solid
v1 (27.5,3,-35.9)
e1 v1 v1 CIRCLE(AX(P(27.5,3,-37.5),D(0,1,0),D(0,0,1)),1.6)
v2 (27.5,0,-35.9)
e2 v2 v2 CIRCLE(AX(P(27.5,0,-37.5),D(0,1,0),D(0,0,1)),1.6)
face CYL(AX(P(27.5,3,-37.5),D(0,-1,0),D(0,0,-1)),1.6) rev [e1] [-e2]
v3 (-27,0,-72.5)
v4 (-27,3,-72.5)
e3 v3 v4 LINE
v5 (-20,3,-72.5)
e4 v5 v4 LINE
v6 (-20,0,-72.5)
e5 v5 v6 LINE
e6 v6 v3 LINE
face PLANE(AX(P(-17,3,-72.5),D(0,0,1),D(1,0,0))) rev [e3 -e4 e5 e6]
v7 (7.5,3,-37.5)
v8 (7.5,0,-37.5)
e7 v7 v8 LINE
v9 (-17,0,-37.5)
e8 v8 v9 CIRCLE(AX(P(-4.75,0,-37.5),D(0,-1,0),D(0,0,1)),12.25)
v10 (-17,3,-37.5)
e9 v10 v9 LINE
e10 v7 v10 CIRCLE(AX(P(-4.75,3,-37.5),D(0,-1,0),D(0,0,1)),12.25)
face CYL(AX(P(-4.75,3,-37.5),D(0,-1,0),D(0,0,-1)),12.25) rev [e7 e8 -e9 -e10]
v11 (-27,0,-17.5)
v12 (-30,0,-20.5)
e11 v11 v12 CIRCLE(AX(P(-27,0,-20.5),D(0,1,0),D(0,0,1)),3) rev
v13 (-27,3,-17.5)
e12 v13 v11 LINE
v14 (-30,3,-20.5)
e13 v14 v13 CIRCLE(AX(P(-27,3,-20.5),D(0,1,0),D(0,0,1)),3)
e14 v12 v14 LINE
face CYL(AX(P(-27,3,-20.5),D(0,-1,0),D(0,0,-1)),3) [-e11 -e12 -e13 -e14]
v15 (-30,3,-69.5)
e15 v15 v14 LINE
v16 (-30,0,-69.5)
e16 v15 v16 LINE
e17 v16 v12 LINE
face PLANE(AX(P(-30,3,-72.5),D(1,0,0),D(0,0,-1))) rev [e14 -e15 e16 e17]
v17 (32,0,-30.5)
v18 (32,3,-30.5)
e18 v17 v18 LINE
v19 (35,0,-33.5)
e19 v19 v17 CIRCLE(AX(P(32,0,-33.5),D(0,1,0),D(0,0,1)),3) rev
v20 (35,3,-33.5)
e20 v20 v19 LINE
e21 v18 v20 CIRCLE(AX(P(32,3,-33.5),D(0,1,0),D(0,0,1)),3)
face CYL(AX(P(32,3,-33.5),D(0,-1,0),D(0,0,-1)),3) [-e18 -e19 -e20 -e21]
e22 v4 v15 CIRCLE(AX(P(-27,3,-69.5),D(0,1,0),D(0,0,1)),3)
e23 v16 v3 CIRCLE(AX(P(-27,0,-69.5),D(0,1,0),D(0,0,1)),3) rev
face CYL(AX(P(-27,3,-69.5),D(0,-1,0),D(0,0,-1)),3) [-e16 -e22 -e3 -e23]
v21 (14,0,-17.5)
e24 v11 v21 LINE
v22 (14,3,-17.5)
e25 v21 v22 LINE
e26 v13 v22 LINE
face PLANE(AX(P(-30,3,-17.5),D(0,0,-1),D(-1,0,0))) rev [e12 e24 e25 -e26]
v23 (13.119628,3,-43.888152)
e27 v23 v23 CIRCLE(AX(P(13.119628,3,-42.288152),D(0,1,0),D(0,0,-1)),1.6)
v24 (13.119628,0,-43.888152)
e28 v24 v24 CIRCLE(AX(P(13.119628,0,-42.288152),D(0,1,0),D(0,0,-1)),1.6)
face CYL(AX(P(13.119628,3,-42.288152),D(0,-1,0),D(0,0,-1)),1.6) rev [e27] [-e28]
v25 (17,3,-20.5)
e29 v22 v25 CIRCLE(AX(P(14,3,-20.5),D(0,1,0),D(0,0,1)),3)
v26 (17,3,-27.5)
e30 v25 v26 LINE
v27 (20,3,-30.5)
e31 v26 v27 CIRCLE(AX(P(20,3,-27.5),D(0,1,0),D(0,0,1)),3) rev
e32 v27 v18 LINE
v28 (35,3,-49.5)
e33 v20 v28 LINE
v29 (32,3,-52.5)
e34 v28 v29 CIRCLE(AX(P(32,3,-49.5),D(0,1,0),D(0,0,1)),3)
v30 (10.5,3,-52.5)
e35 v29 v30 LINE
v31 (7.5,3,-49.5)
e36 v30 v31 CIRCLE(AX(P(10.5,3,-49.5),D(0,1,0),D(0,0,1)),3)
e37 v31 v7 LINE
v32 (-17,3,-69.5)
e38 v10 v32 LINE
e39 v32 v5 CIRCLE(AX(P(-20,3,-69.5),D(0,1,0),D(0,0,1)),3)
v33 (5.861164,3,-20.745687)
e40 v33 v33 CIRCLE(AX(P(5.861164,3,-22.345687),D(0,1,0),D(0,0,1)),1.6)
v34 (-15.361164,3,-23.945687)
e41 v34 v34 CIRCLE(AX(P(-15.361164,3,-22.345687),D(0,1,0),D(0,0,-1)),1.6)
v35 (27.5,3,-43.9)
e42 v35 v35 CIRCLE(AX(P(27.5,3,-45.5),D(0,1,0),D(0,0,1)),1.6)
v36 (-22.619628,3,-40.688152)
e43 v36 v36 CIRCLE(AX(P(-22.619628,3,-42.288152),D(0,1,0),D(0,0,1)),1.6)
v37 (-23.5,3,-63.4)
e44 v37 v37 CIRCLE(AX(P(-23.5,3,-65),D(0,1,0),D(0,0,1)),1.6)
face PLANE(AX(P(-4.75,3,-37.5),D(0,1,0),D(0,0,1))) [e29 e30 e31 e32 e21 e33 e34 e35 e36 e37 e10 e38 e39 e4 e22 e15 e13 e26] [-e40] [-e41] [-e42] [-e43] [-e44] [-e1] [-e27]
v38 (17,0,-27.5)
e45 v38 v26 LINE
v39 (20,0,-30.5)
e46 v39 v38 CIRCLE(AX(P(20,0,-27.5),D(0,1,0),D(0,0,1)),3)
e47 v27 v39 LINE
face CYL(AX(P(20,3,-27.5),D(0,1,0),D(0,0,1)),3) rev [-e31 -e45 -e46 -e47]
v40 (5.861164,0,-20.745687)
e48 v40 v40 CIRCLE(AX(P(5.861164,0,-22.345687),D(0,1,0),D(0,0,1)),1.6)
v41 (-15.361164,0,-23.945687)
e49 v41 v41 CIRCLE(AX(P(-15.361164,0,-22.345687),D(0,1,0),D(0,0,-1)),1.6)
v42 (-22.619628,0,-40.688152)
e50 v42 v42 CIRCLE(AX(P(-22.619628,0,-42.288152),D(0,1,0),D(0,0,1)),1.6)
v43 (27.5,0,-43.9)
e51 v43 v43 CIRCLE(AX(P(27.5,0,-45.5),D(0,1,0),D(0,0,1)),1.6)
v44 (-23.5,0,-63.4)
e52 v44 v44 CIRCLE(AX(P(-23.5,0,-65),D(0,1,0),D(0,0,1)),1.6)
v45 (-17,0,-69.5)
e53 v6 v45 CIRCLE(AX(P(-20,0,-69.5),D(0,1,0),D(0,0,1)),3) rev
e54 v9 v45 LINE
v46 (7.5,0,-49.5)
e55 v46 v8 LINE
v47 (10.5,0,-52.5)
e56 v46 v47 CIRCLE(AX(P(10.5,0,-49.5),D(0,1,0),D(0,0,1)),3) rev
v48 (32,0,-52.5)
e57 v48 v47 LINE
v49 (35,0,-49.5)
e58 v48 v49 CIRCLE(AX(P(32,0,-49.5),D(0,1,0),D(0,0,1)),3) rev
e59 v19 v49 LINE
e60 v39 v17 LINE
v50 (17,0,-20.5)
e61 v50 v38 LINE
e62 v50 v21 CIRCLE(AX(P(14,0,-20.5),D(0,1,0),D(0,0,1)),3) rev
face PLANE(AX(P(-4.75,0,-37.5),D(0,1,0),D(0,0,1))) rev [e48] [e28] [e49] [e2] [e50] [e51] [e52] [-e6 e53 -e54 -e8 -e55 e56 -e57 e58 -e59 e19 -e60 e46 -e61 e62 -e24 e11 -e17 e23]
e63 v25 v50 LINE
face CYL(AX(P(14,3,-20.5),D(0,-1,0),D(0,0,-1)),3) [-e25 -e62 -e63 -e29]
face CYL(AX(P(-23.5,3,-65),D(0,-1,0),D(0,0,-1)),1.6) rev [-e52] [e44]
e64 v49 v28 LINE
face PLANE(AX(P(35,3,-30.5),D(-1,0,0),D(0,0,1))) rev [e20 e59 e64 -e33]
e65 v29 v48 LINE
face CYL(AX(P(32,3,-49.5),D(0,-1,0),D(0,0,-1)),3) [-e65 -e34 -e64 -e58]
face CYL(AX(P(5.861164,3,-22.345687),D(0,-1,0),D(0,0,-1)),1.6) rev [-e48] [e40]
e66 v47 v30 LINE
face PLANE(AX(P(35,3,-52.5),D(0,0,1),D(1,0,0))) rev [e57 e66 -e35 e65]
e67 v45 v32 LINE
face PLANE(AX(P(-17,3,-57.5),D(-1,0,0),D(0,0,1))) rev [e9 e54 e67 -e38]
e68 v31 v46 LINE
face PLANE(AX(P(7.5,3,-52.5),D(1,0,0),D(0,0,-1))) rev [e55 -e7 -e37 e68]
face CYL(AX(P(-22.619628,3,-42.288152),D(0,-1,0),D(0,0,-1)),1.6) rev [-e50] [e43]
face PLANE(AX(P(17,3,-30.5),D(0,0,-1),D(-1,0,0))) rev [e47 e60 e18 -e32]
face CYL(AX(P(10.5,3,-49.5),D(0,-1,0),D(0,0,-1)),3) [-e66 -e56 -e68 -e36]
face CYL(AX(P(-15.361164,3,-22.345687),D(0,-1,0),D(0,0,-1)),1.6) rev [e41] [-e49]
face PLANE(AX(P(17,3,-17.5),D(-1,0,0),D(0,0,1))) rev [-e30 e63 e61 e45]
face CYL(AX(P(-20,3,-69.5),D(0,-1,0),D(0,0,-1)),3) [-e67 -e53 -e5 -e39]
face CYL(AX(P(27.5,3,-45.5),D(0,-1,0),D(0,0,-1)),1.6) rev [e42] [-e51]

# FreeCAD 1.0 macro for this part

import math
import FreeCAD as App
import Part
import Sketcher
from FreeCAD import Vector
Q = App.Units.Quantity


def edges_at(feature, points):
    """Names of the edges that pass closest to the given points."""
    edges = feature.Shape.Edges
    near = lambda p: min(range(len(edges)), key=lambda i: edges[i].distToShape(Part.Vertex(*p))[0])
    return sorted({f"Edge{near(p) + 1}" for p in points})

doc = App.newDocument("Part")
body = doc.addObject("PartDesign::Body", "Body")

# Sketch on XZ plane
sketch1 = body.newObject("Sketcher::SketchObject", "Sketch")
sketch1.AttachmentSupport = (doc.getObject("XZ_Plane"), [""])
sketch1.MapMode = "FlatFace"
sketch1.addGeometry([
    Part.LineSegment(Vector(-17, -72.5, 0), Vector(-30, -72.5, 0)),  # 0
    Part.LineSegment(Vector(-30, -72.5, 0), Vector(-30, -17.5, 0)),  # 1
    Part.LineSegment(Vector(-30, -17.5, 0), Vector(17, -17.5, 0)),  # 2
    Part.LineSegment(Vector(17, -17.5, 0), Vector(17, -30.5, 0)),  # 3
    Part.LineSegment(Vector(17, -30.5, 0), Vector(35, -30.5, 0)),  # 4
    Part.LineSegment(Vector(35, -30.5, 0), Vector(35, -52.5, 0)),  # 5
    Part.LineSegment(Vector(35, -52.5, 0), Vector(7.5, -52.5, 0)),  # 6
    Part.LineSegment(Vector(7.5, -52.5, 0), Vector(7.5, -37.5, 0)),  # 7
    Part.ArcOfCircle(Part.Circle(Vector(-4.8, -37.5, 0), Vector(0, 0, 1), 12.2), math.radians(0), math.radians(180)),  # 8
    Part.LineSegment(Vector(-17, -37.5, 0), Vector(-17, -72.5, 0)),  # 9
    Part.Circle(Vector(-15.4, -22.3, 0), Vector(0, 0, 1), 1.6),  # 10
    Part.Circle(Vector(-22.6, -42.3, 0), Vector(0, 0, 1), 1.6),  # 11
    Part.Circle(Vector(5.9, -22.3, 0), Vector(0, 0, 1), 1.6),  # 12
    Part.Circle(Vector(13.1, -42.3, 0), Vector(0, 0, 1), 1.6),  # 13
    Part.Circle(Vector(27.5, -37.5, 0), Vector(0, 0, 1), 1.6),  # 14
    Part.Circle(Vector(-23.5, -65, 0), Vector(0, 0, 1), 1.6),  # 15
    Part.Circle(Vector(27.5, -45.5, 0), Vector(0, 0, 1), 1.6),  # 16
], False)
sketch1.addConstraint([
    Sketcher.Constraint("Coincident", 0, 2, 1, 1),
    Sketcher.Constraint("Coincident", 1, 2, 2, 1),
    Sketcher.Constraint("Coincident", 2, 2, 3, 1),
    Sketcher.Constraint("Coincident", 3, 2, 4, 1),
    Sketcher.Constraint("Coincident", 4, 2, 5, 1),
    Sketcher.Constraint("Coincident", 5, 2, 6, 1),
    Sketcher.Constraint("Coincident", 6, 2, 7, 1),
    Sketcher.Constraint("Tangent", 7, 2, 8, 1),
    Sketcher.Constraint("Tangent", 8, 2, 9, 1),
    Sketcher.Constraint("Coincident", 9, 2, 0, 1),
    Sketcher.Constraint("Horizontal", 0),
    Sketcher.Constraint("Vertical", 1),
    Sketcher.Constraint("Horizontal", 2),
    Sketcher.Constraint("Vertical", 3),
    Sketcher.Constraint("Horizontal", 4),
    Sketcher.Constraint("Vertical", 5),
    Sketcher.Constraint("Horizontal", 6),
    Sketcher.Constraint("Vertical", 7),
    Sketcher.Constraint("Vertical", 9),
    Sketcher.Constraint("Equal", 10, 11),
    Sketcher.Constraint("Equal", 11, 12),
    Sketcher.Constraint("Equal", 12, 13),
    Sketcher.Constraint("Equal", 13, 14),
    Sketcher.Constraint("Equal", 14, 15),
    Sketcher.Constraint("Equal", 15, 16),
    Sketcher.Constraint("Horizontal", 10, 3, 12, 3),
    Sketcher.Constraint("Horizontal", 11, 3, 13, 3),
    Sketcher.Constraint("Horizontal", 8, 3, 14, 3),
    Sketcher.Constraint("Vertical", 14, 3, 16, 3),
    Sketcher.Constraint("Equal", 0, 3),
    Sketcher.Constraint("Diameter", 10, Q("3.2 mm")),
    Sketcher.Constraint("DistanceX", 0, 2, 0, 1, Q("13 mm")),
    Sketcher.Constraint("DistanceX", 2, 1, 2, 2, Q("47 mm")),
    Sketcher.Constraint("DistanceX", 4, 1, 4, 2, Q("18 mm")),
    Sketcher.Constraint("DistanceY", 1, 1, 1, 2, Q("55 mm")),
    Sketcher.Constraint("DistanceY", 5, 2, 5, 1, Q("22 mm")),
    Sketcher.Constraint("DistanceY", 7, 1, 7, 2, Q("15 mm")),
    Sketcher.Constraint("Radius", 8, Q("12.25 mm")),
    Sketcher.Constraint("DistanceY", 15, 3, -1, 1, Q("65 mm")),
    Sketcher.Constraint("DistanceX", 0, 2, -1, 1, Q("30 mm")),
    Sketcher.Constraint("DistanceY", 16, 3, 14, 3, Q("8 mm")),
    Sketcher.Constraint("DistanceX", 6, 2, 16, 3, Q("20 mm")),
    Sketcher.Constraint("DistanceY", 8, 3, -1, 1, Q("37.5 mm")),
    Sketcher.Constraint("DistanceX", 15, 3, -1, 1, Q("23.5 mm")),
    Sketcher.Constraint("DistanceX", 10, 3, 12, 3, Q("21.222328 mm")),
    Sketcher.Constraint("DistanceX", 11, 3, 12, 3, Q("28.480792 mm")),
    Sketcher.Constraint("DistanceX", 10, 3, 13, 3, Q("28.480792 mm")),
    Sketcher.Constraint("DistanceX", 10, 3, -1, 1, Q("15.361164 mm")),
    Sketcher.Constraint("DistanceY", 10, 3, -1, 1, Q("22.345687 mm")),
    Sketcher.Constraint("DistanceY", 11, 3, -1, 1, Q("42.288152 mm")),
])
pad1 = body.newObject("PartDesign::Pad", "Pad")
pad1.Profile = sketch1
pad1.Length = 3
pad1.Reversed = True
doc.recompute()

fillet = body.newObject("PartDesign::Fillet", "Fillet")
fillet.Base = (pad1, edges_at(pad1, [
    (7.5, 1.5, -52.5),
    (35, 1.5, -52.5),
    (35, 1.5, -30.5),
    (17, 1.5, -30.5),
    (17, 1.5, -17.5),
    (-30, 1.5, -17.5),
    (-30, 1.5, -72.5),
    (-17, 1.5, -72.5),
]))
fillet.Radius = 3

doc.recompute()
